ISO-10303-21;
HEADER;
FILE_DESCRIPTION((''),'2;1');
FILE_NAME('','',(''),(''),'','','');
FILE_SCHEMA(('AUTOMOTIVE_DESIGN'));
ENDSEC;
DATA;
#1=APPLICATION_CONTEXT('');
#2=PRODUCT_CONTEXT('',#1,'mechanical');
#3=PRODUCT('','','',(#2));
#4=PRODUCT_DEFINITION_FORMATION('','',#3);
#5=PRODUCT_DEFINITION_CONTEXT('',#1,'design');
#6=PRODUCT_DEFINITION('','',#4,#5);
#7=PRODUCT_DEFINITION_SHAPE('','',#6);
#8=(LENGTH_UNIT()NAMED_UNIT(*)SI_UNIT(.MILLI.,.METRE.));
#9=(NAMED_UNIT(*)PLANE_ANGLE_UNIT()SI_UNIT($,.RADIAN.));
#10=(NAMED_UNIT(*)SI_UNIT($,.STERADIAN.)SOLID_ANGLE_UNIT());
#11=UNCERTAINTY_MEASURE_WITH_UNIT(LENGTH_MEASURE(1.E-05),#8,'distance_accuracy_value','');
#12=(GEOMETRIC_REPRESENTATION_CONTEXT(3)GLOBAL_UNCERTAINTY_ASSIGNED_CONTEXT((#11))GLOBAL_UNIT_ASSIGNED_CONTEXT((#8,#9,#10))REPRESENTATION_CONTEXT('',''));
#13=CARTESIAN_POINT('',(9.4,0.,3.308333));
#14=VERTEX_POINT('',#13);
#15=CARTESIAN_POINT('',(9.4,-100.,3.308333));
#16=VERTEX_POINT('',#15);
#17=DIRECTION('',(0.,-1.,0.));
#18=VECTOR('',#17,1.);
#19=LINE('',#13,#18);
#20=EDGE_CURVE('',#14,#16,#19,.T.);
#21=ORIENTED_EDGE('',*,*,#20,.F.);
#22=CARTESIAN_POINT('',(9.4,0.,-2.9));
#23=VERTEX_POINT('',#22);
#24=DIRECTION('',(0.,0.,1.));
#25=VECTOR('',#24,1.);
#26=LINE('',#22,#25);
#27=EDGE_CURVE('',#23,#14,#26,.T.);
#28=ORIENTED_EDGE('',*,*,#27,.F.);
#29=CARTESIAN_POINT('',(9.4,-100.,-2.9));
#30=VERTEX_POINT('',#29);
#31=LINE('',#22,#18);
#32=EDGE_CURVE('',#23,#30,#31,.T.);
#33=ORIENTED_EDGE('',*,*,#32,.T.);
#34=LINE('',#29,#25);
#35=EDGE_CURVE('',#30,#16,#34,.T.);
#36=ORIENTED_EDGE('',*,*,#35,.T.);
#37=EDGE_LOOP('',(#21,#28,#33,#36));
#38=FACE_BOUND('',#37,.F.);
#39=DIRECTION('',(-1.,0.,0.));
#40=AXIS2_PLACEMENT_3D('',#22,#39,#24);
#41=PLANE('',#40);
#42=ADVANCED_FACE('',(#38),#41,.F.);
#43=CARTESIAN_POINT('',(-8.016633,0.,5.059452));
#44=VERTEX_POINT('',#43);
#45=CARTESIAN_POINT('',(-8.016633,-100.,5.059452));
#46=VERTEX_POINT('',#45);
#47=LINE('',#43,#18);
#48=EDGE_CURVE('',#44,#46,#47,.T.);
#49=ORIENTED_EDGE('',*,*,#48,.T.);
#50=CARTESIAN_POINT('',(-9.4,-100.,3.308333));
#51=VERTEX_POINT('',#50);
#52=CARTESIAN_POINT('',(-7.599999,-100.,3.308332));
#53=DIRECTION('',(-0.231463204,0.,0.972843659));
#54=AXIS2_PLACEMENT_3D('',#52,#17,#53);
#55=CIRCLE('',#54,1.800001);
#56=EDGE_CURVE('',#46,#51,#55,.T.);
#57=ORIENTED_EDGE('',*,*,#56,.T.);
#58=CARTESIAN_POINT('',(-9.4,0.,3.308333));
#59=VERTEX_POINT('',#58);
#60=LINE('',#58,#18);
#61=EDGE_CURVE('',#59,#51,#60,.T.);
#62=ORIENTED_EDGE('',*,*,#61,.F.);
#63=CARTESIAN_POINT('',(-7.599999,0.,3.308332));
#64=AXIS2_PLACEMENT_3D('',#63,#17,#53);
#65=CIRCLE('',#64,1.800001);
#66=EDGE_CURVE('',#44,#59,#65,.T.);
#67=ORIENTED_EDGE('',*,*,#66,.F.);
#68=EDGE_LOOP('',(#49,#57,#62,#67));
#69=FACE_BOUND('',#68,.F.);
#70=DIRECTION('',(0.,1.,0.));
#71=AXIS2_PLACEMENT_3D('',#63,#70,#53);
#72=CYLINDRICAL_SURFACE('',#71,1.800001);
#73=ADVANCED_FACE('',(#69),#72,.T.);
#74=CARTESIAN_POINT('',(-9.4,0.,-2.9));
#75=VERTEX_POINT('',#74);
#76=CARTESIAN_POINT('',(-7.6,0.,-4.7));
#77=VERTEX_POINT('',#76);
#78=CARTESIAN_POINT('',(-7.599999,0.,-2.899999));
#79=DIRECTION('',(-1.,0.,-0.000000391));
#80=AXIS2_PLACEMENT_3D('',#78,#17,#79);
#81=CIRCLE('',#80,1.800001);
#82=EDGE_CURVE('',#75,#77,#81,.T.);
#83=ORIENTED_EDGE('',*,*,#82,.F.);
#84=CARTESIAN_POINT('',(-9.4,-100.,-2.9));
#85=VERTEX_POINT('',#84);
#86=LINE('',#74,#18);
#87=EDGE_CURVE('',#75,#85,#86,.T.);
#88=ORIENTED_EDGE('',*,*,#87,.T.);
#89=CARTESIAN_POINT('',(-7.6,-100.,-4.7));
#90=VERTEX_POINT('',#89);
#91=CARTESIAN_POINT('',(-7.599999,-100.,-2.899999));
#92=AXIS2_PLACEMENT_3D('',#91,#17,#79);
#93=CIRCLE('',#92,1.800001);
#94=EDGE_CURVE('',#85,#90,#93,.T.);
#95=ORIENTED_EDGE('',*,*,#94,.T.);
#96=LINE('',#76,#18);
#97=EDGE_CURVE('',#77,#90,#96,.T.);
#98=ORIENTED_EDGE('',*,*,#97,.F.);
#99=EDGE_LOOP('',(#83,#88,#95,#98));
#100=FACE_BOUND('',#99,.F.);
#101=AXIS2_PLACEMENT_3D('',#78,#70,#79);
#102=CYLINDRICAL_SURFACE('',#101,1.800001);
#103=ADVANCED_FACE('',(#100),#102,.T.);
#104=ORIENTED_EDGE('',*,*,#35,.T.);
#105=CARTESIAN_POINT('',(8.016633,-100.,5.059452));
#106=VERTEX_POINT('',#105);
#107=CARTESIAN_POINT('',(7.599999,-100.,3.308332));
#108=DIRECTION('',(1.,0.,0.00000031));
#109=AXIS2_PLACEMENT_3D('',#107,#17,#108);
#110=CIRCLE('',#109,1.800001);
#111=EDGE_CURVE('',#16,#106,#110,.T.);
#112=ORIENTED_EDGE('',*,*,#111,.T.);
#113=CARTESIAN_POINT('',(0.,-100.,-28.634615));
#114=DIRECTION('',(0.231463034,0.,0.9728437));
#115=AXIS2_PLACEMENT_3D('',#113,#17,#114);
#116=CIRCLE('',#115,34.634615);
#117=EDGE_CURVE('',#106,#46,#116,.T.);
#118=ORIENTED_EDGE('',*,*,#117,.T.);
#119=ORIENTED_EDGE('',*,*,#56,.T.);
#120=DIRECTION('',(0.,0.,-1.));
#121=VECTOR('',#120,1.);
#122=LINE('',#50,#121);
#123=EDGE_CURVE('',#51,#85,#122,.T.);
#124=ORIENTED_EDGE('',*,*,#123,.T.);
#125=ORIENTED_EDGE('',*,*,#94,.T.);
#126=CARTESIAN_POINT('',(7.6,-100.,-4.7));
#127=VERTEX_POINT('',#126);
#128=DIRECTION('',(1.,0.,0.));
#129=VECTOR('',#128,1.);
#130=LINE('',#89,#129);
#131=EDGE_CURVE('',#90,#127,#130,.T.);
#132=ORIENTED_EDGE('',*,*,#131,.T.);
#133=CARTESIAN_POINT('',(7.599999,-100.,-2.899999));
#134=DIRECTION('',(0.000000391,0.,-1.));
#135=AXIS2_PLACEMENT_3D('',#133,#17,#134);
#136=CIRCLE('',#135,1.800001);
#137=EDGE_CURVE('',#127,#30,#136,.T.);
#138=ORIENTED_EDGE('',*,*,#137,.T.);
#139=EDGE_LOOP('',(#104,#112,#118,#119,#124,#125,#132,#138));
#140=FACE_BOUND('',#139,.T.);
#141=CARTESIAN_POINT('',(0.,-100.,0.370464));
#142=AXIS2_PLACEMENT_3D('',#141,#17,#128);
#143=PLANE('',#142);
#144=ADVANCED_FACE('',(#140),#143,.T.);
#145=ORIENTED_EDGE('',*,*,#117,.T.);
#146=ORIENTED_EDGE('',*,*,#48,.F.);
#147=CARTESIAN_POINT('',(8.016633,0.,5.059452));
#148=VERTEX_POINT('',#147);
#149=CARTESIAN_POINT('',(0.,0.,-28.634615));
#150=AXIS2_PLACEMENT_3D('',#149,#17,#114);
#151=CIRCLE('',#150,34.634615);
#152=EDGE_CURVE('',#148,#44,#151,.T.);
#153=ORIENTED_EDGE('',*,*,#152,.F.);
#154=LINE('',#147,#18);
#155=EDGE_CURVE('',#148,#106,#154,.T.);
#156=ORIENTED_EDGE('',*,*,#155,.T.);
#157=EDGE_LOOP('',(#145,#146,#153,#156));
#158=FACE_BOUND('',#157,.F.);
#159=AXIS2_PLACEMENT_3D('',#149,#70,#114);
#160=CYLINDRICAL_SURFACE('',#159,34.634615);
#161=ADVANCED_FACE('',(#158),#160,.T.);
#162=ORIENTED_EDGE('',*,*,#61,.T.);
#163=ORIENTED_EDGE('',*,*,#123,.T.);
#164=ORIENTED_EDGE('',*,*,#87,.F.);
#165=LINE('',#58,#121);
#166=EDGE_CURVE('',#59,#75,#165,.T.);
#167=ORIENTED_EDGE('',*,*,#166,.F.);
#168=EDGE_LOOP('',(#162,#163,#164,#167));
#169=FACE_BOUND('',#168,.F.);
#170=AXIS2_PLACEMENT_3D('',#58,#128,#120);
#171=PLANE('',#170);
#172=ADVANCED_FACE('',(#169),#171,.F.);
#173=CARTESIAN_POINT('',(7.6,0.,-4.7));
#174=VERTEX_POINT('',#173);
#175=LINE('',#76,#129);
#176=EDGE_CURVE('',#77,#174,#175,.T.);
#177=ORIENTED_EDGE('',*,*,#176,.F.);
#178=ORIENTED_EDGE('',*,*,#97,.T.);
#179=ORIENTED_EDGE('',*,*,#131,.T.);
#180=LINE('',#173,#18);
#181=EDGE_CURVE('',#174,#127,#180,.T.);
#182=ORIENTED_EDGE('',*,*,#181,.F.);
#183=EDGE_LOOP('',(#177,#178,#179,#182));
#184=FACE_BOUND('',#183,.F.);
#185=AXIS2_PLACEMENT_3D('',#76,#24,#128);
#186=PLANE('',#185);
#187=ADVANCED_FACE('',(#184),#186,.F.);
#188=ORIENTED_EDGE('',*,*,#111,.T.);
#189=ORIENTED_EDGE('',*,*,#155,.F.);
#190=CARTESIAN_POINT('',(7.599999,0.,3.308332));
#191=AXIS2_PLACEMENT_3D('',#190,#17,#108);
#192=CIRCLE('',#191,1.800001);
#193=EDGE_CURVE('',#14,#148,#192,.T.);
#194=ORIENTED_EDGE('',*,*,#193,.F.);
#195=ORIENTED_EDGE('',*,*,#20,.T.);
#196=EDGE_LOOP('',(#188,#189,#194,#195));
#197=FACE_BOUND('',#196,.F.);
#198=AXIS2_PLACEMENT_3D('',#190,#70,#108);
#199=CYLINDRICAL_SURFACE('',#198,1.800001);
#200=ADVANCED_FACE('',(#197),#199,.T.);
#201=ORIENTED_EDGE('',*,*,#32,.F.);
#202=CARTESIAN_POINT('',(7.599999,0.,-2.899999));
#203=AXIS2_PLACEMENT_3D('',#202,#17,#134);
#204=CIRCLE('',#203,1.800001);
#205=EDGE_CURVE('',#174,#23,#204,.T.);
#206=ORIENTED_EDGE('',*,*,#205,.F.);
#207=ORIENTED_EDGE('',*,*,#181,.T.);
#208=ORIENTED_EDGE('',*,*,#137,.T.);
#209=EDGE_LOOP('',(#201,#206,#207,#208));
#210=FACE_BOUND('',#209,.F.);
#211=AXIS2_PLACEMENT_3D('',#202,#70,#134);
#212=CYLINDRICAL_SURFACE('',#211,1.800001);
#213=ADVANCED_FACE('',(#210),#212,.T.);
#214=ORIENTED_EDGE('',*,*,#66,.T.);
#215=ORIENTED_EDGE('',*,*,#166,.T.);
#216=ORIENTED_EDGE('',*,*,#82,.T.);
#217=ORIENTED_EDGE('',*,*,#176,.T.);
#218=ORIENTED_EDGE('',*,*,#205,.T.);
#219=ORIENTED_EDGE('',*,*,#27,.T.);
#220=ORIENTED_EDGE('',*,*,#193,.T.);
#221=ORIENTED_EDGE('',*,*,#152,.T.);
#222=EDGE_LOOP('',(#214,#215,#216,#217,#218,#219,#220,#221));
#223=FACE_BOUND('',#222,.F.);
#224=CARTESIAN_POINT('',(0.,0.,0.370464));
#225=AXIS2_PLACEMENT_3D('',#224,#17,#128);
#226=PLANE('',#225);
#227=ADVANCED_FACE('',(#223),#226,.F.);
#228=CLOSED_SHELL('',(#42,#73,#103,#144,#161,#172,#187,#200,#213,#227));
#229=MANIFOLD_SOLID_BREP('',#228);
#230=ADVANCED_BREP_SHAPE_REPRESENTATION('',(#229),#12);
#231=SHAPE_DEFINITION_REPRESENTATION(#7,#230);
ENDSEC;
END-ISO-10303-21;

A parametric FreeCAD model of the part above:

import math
import FreeCAD as App
import Part
import Sketcher

V = App.Vector

doc = App.newDocument("Part")
params = doc.addObject("Spreadsheet::Sheet", "Params")
for row, (alias, value) in enumerate([
    ("sketch1_radius", "1.800001 mm"),
    ("sketch1_width", "15.2 mm"),
    ("pad1_length", "100 mm"),
], start=1):
    params.set(f"A{row}", alias)
    params.set(f"B{row}", "=" + value)
    params.setAlias(f"B{row}", alias)

body = doc.addObject("PartDesign::Body", "Body")

# Sketch on XZ plane
sketch1 = doc.addObject("Sketcher::SketchObject", "Sketch")
body.addObject(sketch1)
sketch1.AttachmentSupport = (doc.XZ_Plane, [""])
sketch1.MapMode = "FlatFace"
sketch1.addGeometry([
    Part.ArcOfCircle(Part.Circle(V(-7.599999, -2.899999, 0), V(0, 0, 1), 1.800001), math.radians(-179.999978), math.radians(-90.000022)),  # 0
    Part.LineSegment(V(-7.6, -4.7, 0), V(7.6, -4.7, 0)),  # 1
    Part.ArcOfCircle(Part.Circle(V(7.599999, -2.899999, 0), V(0, 0, 1), 1.800001), math.radians(-89.999978), math.radians(-0.000022)),  # 2
    Part.LineSegment(V(9.4, -2.9, 0), V(9.4, 3.308333, 0)),  # 3
    Part.ArcOfCircle(Part.Circle(V(7.599999, 3.308332, 0), V(0, 0, 1), 1.800001), math.radians(0.000018), math.radians(76.616768)),  # 4
    Part.ArcOfCircle(Part.Circle(V(0, -28.634615, 0), V(0, 0, 1), 34.634615), math.radians(76.616778), math.radians(103.383222)),  # 5
    Part.ArcOfCircle(Part.Circle(V(-7.599999, 3.308332, 0), V(0, 0, 1), 1.800001), math.radians(103.383232), math.radians(179.999982)),  # 6
    Part.LineSegment(V(-9.4, 3.308333, 0), V(-9.4, -2.9, 0)),  # 7
], False)
sketch1.addConstraint([
    Sketcher.Constraint("Tangent", 0, 2, 1, 1),
    Sketcher.Constraint("Tangent", 1, 2, 2, 1),
    Sketcher.Constraint("Tangent", 2, 2, 3, 1),
    Sketcher.Constraint("Tangent", 3, 2, 4, 1),
    Sketcher.Constraint("Tangent", 4, 2, 5, 1),
    Sketcher.Constraint("Tangent", 5, 2, 6, 1),
    Sketcher.Constraint("Tangent", 6, 2, 7, 1),
    Sketcher.Constraint("Tangent", 7, 2, 0, 1),
    Sketcher.Constraint("Horizontal", 1),
    Sketcher.Constraint("Vertical", 3),
    Sketcher.Constraint("Vertical", 7),
    Sketcher.Constraint("Equal", 0, 2),
    Sketcher.Constraint("Equal", 2, 4),
    Sketcher.Constraint("Equal", 4, 6),
    Sketcher.Constraint("Symmetric", 4, 3, 6, 3, -2),
    Sketcher.Constraint("Radius", 0, 1.800001),
    Sketcher.Constraint("DistanceX", 1, 1, 1, 2, 15.2),
    Sketcher.Constraint("DistanceY", 0, 3, -1, 1, 2.899999),
    Sketcher.Constraint("Radius", 5, 34.634615),
    Sketcher.Constraint("DistanceY", 3, 1, 3, 2, 6.208333),
])
sketch1.setExpression("Constraints[15]", "Params.sketch1_radius")
sketch1.setExpression("Constraints[16]", "Params.sketch1_width")
pad1 = doc.addObject("PartDesign::Pad", "Pad")
body.addObject(pad1)
pad1.Profile = sketch1
pad1.setExpression("Length", "Params.pad1_length")

doc.recompute()
